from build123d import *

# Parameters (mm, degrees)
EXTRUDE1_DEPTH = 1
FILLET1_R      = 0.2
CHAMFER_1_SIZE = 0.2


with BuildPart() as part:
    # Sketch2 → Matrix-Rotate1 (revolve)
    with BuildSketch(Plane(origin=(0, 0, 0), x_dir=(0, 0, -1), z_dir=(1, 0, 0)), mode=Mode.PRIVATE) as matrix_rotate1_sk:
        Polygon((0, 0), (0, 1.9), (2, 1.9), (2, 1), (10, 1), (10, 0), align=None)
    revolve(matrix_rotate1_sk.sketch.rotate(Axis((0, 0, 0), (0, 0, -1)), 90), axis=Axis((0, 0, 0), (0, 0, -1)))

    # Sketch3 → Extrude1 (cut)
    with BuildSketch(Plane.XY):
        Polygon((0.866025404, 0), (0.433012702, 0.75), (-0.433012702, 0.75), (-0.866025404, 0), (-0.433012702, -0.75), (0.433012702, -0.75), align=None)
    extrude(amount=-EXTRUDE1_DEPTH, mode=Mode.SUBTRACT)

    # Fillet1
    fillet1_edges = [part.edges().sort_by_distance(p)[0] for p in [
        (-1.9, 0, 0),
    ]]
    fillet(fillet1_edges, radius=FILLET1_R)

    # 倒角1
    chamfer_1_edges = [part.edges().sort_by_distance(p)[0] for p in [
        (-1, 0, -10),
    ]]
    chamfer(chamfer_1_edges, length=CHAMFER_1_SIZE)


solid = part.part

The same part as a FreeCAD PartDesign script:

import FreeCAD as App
import Part
import Sketcher
from FreeCAD import Vector
Q = App.Units.Quantity


def edges_at(feature, points):
    """Names of the edges that pass closest to the given points."""
    edges = feature.Shape.Edges
    near = lambda p: min(range(len(edges)), key=lambda i: edges[i].distToShape(Part.Vertex(*p))[0])
    return sorted({f"Edge{near(p) + 1}" for p in points})


def add_polygon(sketch, points):
    """Adds a closed chain of lines whose ends are joined by coincident constraints."""
    first, n = sketch.GeometryCount, len(points)
    for a, b in zip(points, points[1:] + points[:1]):
        sketch.addGeometry(Part.LineSegment(App.Vector(*a, 0), App.Vector(*b, 0)), False)
    for i in range(n):
        sketch.addConstraint(Sketcher.Constraint("Coincident", first + i, 2, first + (i + 1) % n, 1))

doc = App.newDocument("Part")
body = doc.addObject("PartDesign::Body", "Body")

# Sketch on YZ plane
sketch1 = body.newObject("Sketcher::SketchObject", "Sketch")
sketch1.AttachmentSupport = (doc.getObject("YZ_Plane"), [""])
sketch1.MapMode = "FlatFace"
add_polygon(sketch1, [(1.9, 0), (0, 0), (0, -10), (1, -10), (1, -2), (1.9, -2)])  # lines 0-5
sketch1.addConstraint([
    Sketcher.Constraint("Horizontal", 0),
    Sketcher.Constraint("Vertical", 1),
    Sketcher.Constraint("Horizontal", 2),
    Sketcher.Constraint("Vertical", 3),
    Sketcher.Constraint("Horizontal", 4),
    Sketcher.Constraint("Vertical", 5),
    Sketcher.Constraint("Coincident", 0, 2, -1, 1),
    Sketcher.Constraint("DistanceX", 2, 1, 2, 2, Q("1 mm")),
    Sketcher.Constraint("DistanceY", 1, 2, 1, 1, Q("10 mm")),
    Sketcher.Constraint("DistanceY", 3, 1, 3, 2, Q("8 mm")),
    Sketcher.Constraint("DistanceX", 0, 2, 0, 1, Q("1.9 mm")),
])
revolution = body.newObject("PartDesign::Revolution", "Revolution")
revolution.Profile = sketch1
revolution.ReferenceAxis = (sketch1, ["V_Axis"])
revolution.Angle = 360

# Sketch on XY plane
sketch2 = body.newObject("Sketcher::SketchObject", "Sketch001")
sketch2.AttachmentSupport = (doc.getObject("XY_Plane"), [""])
sketch2.MapMode = "FlatFace"
add_polygon(sketch2, [(0.9, 0), (0.4, 0.8), (-0.4, 0.8), (-0.9, 0), (-0.4, -0.8), (0.4, -0.8)])  # lines 0-5
sketch2.addConstraint([
    Sketcher.Constraint("Horizontal", 1),
    Sketcher.Constraint("Horizontal", 4),
    Sketcher.Constraint("Symmetric", 0, 2, 3, 2, -1, 1),
    Sketcher.Constraint("Symmetric", 2, 2, 5, 2, -1, 1),
    Sketcher.Constraint("PointOnObject", 2, 2, -1),
    Sketcher.Constraint("Parallel", 2, 5),
    Sketcher.Constraint("Vertical", 1, 2, 3, 2),
    Sketcher.Constraint("Angle", 0, Q("120 deg")),
    Sketcher.Constraint("DistanceY", 3, 2, 1, 2, Q("1.5 mm")),
    Sketcher.Constraint("DistanceX", 1, 2, 1, 1, Q("0.866025 mm")),
])
pocket1 = body.newObject("PartDesign::Pocket", "Pocket")
pocket1.Profile = sketch2
pocket1.Length = 1
doc.recompute()

fillet = body.newObject("PartDesign::Fillet", "Fillet")
fillet.Base = (pocket1, edges_at(pocket1, [(-1.9, 0, 0)]))
fillet.Radius = 0.2
doc.recompute()

chamfer = body.newObject("PartDesign::Chamfer", "Chamfer")
chamfer.Base = (fillet, edges_at(fillet, [(-1, 0, -10)]))
chamfer.Size = 0.2

doc.recompute()
